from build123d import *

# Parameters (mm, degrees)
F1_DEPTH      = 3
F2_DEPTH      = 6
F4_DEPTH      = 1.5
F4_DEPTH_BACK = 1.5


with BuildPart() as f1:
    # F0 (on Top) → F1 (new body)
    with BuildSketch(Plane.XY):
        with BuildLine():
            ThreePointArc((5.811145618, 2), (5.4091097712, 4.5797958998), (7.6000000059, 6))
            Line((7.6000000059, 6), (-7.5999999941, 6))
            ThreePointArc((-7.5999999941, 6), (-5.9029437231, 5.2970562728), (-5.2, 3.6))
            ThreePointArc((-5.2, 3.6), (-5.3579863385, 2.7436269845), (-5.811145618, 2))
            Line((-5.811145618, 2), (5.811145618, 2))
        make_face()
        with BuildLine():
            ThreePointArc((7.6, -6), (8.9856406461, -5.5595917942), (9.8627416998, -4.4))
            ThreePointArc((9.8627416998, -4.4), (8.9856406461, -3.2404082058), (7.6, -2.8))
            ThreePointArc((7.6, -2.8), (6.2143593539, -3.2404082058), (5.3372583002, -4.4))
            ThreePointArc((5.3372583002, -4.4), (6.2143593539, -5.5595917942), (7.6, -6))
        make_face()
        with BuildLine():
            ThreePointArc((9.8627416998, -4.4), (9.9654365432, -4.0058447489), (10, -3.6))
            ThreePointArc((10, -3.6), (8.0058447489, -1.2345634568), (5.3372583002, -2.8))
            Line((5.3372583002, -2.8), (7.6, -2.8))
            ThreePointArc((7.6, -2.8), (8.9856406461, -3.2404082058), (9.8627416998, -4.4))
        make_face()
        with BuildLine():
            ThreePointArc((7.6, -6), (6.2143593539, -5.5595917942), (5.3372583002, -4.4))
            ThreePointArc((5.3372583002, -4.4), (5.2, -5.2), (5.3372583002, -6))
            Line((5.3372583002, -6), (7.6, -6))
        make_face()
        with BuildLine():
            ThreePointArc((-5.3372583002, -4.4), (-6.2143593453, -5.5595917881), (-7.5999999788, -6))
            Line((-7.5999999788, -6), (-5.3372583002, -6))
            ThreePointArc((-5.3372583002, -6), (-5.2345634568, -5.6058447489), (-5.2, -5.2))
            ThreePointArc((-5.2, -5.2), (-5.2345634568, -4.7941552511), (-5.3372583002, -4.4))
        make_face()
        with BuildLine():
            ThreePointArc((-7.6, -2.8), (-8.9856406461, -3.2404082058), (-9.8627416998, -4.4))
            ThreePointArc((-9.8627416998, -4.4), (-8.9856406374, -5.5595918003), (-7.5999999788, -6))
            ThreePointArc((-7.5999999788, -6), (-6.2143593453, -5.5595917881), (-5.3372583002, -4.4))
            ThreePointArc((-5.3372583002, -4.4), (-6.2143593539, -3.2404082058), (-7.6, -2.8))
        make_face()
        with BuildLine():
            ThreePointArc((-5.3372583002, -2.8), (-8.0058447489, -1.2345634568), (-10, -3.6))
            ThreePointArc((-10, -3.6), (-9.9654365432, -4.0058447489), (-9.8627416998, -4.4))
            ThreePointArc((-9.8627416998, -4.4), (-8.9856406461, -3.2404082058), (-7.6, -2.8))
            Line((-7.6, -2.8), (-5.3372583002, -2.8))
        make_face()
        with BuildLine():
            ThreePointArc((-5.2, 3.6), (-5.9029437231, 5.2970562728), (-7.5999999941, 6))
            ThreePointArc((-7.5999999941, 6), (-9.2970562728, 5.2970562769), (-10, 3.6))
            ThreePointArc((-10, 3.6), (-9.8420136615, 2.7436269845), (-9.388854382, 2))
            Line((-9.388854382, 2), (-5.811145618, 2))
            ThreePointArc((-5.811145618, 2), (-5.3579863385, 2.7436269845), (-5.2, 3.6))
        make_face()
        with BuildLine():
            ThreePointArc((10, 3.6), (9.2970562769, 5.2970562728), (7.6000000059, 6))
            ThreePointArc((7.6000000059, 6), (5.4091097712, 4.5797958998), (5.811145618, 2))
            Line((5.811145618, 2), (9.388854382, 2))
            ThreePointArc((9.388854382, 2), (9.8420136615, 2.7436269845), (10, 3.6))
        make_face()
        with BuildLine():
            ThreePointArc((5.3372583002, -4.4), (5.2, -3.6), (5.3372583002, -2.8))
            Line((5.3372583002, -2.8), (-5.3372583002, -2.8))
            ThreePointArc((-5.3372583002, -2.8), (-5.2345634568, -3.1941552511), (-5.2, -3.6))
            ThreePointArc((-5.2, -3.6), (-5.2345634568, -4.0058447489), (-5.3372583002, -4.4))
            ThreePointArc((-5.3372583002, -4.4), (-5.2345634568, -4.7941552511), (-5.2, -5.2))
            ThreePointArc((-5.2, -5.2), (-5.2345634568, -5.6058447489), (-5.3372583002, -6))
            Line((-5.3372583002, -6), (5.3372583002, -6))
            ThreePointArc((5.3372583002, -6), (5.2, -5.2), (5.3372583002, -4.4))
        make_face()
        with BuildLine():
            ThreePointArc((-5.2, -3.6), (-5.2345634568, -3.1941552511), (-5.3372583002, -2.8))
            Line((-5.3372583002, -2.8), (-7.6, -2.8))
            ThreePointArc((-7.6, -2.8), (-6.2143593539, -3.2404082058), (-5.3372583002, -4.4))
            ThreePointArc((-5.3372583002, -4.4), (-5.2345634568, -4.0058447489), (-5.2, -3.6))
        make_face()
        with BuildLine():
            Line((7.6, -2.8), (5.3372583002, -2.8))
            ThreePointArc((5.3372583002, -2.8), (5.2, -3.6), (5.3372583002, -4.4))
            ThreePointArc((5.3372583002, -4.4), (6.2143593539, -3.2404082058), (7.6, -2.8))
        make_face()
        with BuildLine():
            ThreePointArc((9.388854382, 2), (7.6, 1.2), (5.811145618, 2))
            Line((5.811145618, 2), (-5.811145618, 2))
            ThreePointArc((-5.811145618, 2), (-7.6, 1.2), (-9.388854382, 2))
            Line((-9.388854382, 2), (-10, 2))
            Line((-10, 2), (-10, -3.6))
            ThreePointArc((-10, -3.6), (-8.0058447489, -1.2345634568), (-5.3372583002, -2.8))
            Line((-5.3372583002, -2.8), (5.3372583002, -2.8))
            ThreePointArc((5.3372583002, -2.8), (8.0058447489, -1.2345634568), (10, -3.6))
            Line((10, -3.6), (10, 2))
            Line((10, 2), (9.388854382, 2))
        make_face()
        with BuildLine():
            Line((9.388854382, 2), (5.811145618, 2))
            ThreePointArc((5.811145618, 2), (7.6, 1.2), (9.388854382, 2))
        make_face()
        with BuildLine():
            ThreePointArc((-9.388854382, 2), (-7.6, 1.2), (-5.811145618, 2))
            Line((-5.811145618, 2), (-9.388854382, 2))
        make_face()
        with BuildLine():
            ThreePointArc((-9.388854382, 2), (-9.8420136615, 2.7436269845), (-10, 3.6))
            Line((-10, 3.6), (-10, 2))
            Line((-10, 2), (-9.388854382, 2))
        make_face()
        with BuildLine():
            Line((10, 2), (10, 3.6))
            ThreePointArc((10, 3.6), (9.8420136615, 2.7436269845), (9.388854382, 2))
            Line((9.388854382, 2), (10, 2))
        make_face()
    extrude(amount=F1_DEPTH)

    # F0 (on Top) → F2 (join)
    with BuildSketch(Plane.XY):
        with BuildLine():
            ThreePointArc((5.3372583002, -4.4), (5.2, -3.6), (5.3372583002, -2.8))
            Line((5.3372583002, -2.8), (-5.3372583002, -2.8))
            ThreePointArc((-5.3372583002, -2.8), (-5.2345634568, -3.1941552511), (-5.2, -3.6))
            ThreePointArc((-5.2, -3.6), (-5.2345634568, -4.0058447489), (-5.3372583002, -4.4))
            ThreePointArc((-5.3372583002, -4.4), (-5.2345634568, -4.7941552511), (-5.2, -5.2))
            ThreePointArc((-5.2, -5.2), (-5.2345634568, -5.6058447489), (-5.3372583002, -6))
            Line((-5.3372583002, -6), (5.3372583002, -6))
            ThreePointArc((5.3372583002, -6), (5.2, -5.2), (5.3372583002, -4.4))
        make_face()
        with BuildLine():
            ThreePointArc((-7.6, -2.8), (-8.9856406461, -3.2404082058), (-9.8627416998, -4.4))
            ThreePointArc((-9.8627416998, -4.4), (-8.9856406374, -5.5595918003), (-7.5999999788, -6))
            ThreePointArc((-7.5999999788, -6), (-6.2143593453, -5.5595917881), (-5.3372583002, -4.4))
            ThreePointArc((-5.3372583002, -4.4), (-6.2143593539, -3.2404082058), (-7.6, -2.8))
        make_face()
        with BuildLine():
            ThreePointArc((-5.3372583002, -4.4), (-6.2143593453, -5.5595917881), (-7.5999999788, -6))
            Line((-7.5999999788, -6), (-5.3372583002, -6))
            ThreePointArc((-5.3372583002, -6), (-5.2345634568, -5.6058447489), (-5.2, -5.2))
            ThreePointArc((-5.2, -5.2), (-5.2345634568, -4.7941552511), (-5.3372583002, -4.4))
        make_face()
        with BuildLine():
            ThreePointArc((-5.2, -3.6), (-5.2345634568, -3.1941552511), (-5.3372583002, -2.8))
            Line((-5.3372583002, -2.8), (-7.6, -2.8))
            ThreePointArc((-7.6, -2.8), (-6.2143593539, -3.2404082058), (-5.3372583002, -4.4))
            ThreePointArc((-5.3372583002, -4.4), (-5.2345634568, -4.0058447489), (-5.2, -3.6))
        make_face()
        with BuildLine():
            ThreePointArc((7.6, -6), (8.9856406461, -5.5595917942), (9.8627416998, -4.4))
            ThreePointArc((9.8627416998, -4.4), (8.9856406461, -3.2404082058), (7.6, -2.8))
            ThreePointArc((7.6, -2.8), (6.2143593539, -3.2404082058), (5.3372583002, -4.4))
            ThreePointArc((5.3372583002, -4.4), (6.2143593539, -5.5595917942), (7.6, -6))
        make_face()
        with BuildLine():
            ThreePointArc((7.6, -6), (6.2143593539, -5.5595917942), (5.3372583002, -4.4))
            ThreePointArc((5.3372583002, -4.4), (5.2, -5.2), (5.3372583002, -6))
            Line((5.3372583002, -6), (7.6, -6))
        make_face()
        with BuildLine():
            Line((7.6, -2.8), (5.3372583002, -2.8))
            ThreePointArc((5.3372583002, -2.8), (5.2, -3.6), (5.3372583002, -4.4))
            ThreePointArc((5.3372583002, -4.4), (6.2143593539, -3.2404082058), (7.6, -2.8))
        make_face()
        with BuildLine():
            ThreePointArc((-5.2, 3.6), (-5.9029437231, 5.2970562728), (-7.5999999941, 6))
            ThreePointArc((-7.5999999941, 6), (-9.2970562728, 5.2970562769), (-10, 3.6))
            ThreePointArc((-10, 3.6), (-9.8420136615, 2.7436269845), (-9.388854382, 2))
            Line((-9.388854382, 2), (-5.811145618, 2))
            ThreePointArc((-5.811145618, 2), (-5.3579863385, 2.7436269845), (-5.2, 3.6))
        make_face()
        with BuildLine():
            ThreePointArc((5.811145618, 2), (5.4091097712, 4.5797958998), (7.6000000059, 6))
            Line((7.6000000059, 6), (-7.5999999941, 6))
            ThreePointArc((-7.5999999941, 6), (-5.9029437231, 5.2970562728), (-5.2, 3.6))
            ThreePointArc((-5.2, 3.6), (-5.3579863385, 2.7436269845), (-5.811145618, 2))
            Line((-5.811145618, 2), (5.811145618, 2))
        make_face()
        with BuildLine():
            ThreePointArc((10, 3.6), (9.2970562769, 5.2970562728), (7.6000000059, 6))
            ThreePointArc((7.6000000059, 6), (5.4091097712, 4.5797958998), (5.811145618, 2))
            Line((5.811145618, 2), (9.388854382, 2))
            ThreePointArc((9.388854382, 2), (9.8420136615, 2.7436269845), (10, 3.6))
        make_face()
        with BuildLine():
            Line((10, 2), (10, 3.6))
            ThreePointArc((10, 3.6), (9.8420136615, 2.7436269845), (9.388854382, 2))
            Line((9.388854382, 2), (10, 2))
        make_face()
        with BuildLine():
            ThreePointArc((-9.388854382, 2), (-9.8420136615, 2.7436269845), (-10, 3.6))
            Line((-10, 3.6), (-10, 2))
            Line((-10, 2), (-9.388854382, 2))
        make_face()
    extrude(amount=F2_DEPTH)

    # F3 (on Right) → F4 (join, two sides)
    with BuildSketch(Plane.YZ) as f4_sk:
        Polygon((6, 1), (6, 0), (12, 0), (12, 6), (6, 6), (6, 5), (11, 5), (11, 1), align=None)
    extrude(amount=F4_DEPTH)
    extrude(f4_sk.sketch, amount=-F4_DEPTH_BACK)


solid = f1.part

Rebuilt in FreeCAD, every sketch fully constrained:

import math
import FreeCAD as App
import Part
import Sketcher
Q = App.Units.Quantity

doc = App.newDocument("Part")
params = doc.addObject("Spreadsheet::Sheet", "Params")
for row, (alias, value) in enumerate([
    ("sketch1_radius", "2.4 mm"),
    ("sketch1_width", "15.2 mm"),
    ("sketch1_height", "7.2 mm"),
    ("pad1_length", "3 mm"),
    ("sketch2_radius", "2.4 mm"),
    ("sketch2_width", "20 mm"),
    ("sketch2_height", "1.6 mm"),
    ("pad2_length", "6 mm"),
    ("sketch3_width", "6 mm"),
    ("sketch3_width2", "5 mm"),
    ("sketch3_height", "1 mm"),
    ("pad3_length", "1.5 mm"),
    ("pad3_length2", "1.5 mm"),
], start=1):
    params.set(f"A{row}", alias)
    params.set(f"B{row}", "=" + value)
    params.setAlias(f"B{row}", alias)

body = doc.addObject("PartDesign::Body", "Body")

sketch1 = doc.addObject("Sketcher::SketchObject", "Sketch")
body.addObject(sketch1)
sketch1.AttachmentSupport = (doc.XY_Plane, [""])
sketch1.MapMode = "FlatFace"
sketch1.addGeometry(Part.ArcOfCircle(Part.Circle(App.Vector(-7.6, -3.6, 0), App.Vector(0, 0, 1), 2.4), math.radians(180), math.radians(199.47)), False)
sketch1.addGeometry(Part.ArcOfCircle(Part.Circle(App.Vector(-7.6, -3.6, 0), App.Vector(0, 0, 1), 2.4), math.radians(-161), math.radians(-90)), False)
sketch1.addGeometry(Part.LineSegment(App.Vector(-7.6, -6, 0), App.Vector(7.6, -6, 0)), False)
sketch1.addGeometry(Part.ArcOfCircle(Part.Circle(App.Vector(7.6, -3.6, 0), App.Vector(0, 0, 1), 2.4), math.radians(-90), math.radians(-19)), False)
sketch1.addGeometry(Part.ArcOfCircle(Part.Circle(App.Vector(7.6, -3.6, 0), App.Vector(0, 0, 1), 2.4), math.radians(-19.47), math.radians(0)), False)
sketch1.addGeometry(Part.LineSegment(App.Vector(10, -3.6, 0), App.Vector(10, 3.6, 0)), False)
sketch1.addGeometry(Part.ArcOfCircle(Part.Circle(App.Vector(7.6, 3.6, 0), App.Vector(0, 0, 1), 2.4), math.radians(0), math.radians(90)), False)
sketch1.addGeometry(Part.LineSegment(App.Vector(7.6, 6, 0), App.Vector(-7.6, 6, 0)), False)
sketch1.addGeometry(Part.ArcOfCircle(Part.Circle(App.Vector(-7.6, 3.6, 0), App.Vector(0, 0, 1), 2.4), math.radians(90), math.radians(180)), False)
sketch1.addGeometry(Part.LineSegment(App.Vector(-10, 3.6, 0), App.Vector(-10, -3.6, 0)), False)
sketch1.addConstraint(Sketcher.Constraint("Tangent", 0, 2, 1, 1))
sketch1.addConstraint(Sketcher.Constraint("Tangent", 1, 2, 2, 1))
sketch1.addConstraint(Sketcher.Constraint("Tangent", 2, 2, 3, 1))
sketch1.addConstraint(Sketcher.Constraint("Tangent", 3, 2, 4, 1))
sketch1.addConstraint(Sketcher.Constraint("Tangent", 4, 2, 5, 1))
sketch1.addConstraint(Sketcher.Constraint("Tangent", 5, 2, 6, 1))
sketch1.addConstraint(Sketcher.Constraint("Tangent", 6, 2, 7, 1))
sketch1.addConstraint(Sketcher.Constraint("Tangent", 7, 2, 8, 1))
sketch1.addConstraint(Sketcher.Constraint("Tangent", 8, 2, 9, 1))
sketch1.addConstraint(Sketcher.Constraint("Tangent", 9, 2, 0, 1))
sketch1.addConstraint(Sketcher.Constraint("Horizontal", 2))
sketch1.addConstraint(Sketcher.Constraint("Vertical", 5))
sketch1.addConstraint(Sketcher.Constraint("Horizontal", 7))
sketch1.addConstraint(Sketcher.Constraint("Vertical", 9))
sketch1.addConstraint(Sketcher.Constraint("Equal", 0, 1))
sketch1.addConstraint(Sketcher.Constraint("Equal", 1, 3))
sketch1.addConstraint(Sketcher.Constraint("Equal", 3, 4))
sketch1.addConstraint(Sketcher.Constraint("Equal", 4, 6))
sketch1.addConstraint(Sketcher.Constraint("Equal", 6, 8))
sketch1.addConstraint(Sketcher.Constraint("Symmetric", 0, 3, 6, 3, -1, 1))
sketch1.addConstraint(Sketcher.Constraint("Horizontal", 0, 2, 3, 2))
sketch1.addConstraint(Sketcher.Constraint("Radius", 0, Q("2.4 mm")))
sketch1.addConstraint(Sketcher.Constraint("DistanceX", 2, 1, 2, 2, Q("15.2 mm")))
sketch1.addConstraint(Sketcher.Constraint("DistanceY", 5, 1, 5, 2, Q("7.2 mm")))
sketch1.addConstraint(Sketcher.Constraint("DistanceY", 0, 2, 8, 3, Q("8 mm")))
sketch1.setExpression("Constraints[21]", "Params.sketch1_radius")
sketch1.setExpression("Constraints[22]", "Params.sketch1_width")
sketch1.setExpression("Constraints[23]", "Params.sketch1_height")
pad1 = doc.addObject("PartDesign::Pad", "Pad")
body.addObject(pad1)
pad1.Profile = sketch1
pad1.setExpression("Length", "Params.pad1_length")

sketch2 = doc.addObject("Sketcher::SketchObject", "Sketch001")
body.addObject(sketch2)
sketch2.AttachmentSupport = (doc.XY_Plane, [""])
sketch2.MapMode = "FlatFace"
sketch2.addGeometry(Part.ArcOfCircle(Part.Circle(App.Vector(-7.6, -5.2, 0), App.Vector(0, 0, 1), 2.4), math.radians(90), math.radians(161)), False)
sketch2.addGeometry(Part.ArcOfCircle(Part.Circle(App.Vector(-7.6, -3.6, 0), App.Vector(0, 0, 1), 2.4), math.radians(-161), math.radians(-90)), False)
sketch2.addGeometry(Part.LineSegment(App.Vector(-7.6, -6, 0), App.Vector(7.6, -6, 0)), False)
sketch2.addGeometry(Part.ArcOfCircle(Part.Circle(App.Vector(7.6, -3.6, 0), App.Vector(0, 0, 1), 2.4), math.radians(-90), math.radians(-19)), False)
sketch2.addGeometry(Part.ArcOfCircle(Part.Circle(App.Vector(7.6, -5.2, 0), App.Vector(0, 0, 1), 2.4), math.radians(19), math.radians(90)), False)
sketch2.addGeometry(Part.LineSegment(App.Vector(7.6, -2.8, 0), App.Vector(-7.6, -2.8, 0)), False)
sketch2.addGeometry(Part.ArcOfCircle(Part.Circle(App.Vector(-7.6, 3.6, 0), App.Vector(0, 0, 1), 2.4), math.radians(90), math.radians(180)), False)
sketch2.addGeometry(Part.LineSegment(App.Vector(-10, 3.6, 0), App.Vector(-10, 2, 0)), False)
sketch2.addGeometry(Part.LineSegment(App.Vector(-10, 2, 0), App.Vector(10, 2, 0)), False)
sketch2.addGeometry(Part.LineSegment(App.Vector(10, 2, 0), App.Vector(10, 3.6, 0)), False)
sketch2.addGeometry(Part.ArcOfCircle(Part.Circle(App.Vector(7.6, 3.6, 0), App.Vector(0, 0, 1), 2.4), math.radians(0), math.radians(90)), False)
sketch2.addGeometry(Part.LineSegment(App.Vector(7.6, 6, 0), App.Vector(-7.6, 6, 0)), False)
sketch2.addConstraint(Sketcher.Constraint("Coincident", 0, 2, 1, 1))
sketch2.addConstraint(Sketcher.Constraint("Tangent", 1, 2, 2, 1))
sketch2.addConstraint(Sketcher.Constraint("Tangent", 2, 2, 3, 1))
sketch2.addConstraint(Sketcher.Constraint("Coincident", 3, 2, 4, 1))
sketch2.addConstraint(Sketcher.Constraint("Tangent", 4, 2, 5, 1))
sketch2.addConstraint(Sketcher.Constraint("Tangent", 5, 2, 0, 1))
sketch2.addConstraint(Sketcher.Constraint("Tangent", 6, 2, 7, 1))
sketch2.addConstraint(Sketcher.Constraint("Coincident", 7, 2, 8, 1))
sketch2.addConstraint(Sketcher.Constraint("Coincident", 8, 2, 9, 1))
sketch2.addConstraint(Sketcher.Constraint("Tangent", 9, 2, 10, 1))
sketch2.addConstraint(Sketcher.Constraint("Tangent", 10, 2, 11, 1))
sketch2.addConstraint(Sketcher.Constraint("Tangent", 11, 2, 6, 1))
sketch2.addConstraint(Sketcher.Constraint("Horizontal", 2))
sketch2.addConstraint(Sketcher.Constraint("Horizontal", 5))
sketch2.addConstraint(Sketcher.Constraint("Vertical", 7))
sketch2.addConstraint(Sketcher.Constraint("Horizontal", 8))
sketch2.addConstraint(Sketcher.Constraint("Vertical", 9))
sketch2.addConstraint(Sketcher.Constraint("Horizontal", 11))
sketch2.addConstraint(Sketcher.Constraint("Equal", 0, 1))
sketch2.addConstraint(Sketcher.Constraint("Equal", 1, 3))
sketch2.addConstraint(Sketcher.Constraint("Equal", 3, 4))
sketch2.addConstraint(Sketcher.Constraint("Equal", 4, 6))
sketch2.addConstraint(Sketcher.Constraint("Equal", 6, 10))
sketch2.addConstraint(Sketcher.Constraint("Symmetric", 3, 3, 6, 3, -1, 1))
sketch2.addConstraint(Sketcher.Constraint("Symmetric", 0, 2, 3, 2, -2))
sketch2.addConstraint(Sketcher.Constraint("Vertical", 0, 3, 1, 3))
sketch2.addConstraint(Sketcher.Constraint("Vertical", 4, 3, 10, 3))
sketch2.addConstraint(Sketcher.Constraint("Radius", 0, Q("2.4 mm")))
sketch2.addConstraint(Sketcher.Constraint("DistanceX", 8, 1, 8, 2, Q("20 mm")))
sketch2.addConstraint(Sketcher.Constraint("DistanceY", 7, 2, 7, 1, Q("1.6 mm")))
sketch2.addConstraint(Sketcher.Constraint("DistanceY", 1, 2, -1, 1, Q("6 mm")))
sketch2.addConstraint(Sketcher.Constraint("DistanceY", 0, 2, 6, 3, Q("8 mm")))
sketch2.setExpression("Constraints[27]", "Params.sketch2_radius")
sketch2.setExpression("Constraints[28]", "Params.sketch2_width")
sketch2.setExpression("Constraints[29]", "Params.sketch2_height")
pad2 = doc.addObject("PartDesign::Pad", "Pad001")
body.addObject(pad2)
pad2.Profile = sketch2
pad2.setExpression("Length", "Params.pad2_length")

sketch3 = doc.addObject("Sketcher::SketchObject", "Sketch002")
body.addObject(sketch3)
sketch3.AttachmentSupport = (doc.YZ_Plane, [""])
sketch3.MapMode = "FlatFace"
sketch3.addGeometry(Part.LineSegment(App.Vector(6, 1, 0), App.Vector(6, 0, 0)), False)
sketch3.addGeometry(Part.LineSegment(App.Vector(6, 0, 0), App.Vector(12, 0, 0)), False)
sketch3.addGeometry(Part.LineSegment(App.Vector(12, 0, 0), App.Vector(12, 6, 0)), False)
sketch3.addGeometry(Part.LineSegment(App.Vector(12, 6, 0), App.Vector(6, 6, 0)), False)
sketch3.addGeometry(Part.LineSegment(App.Vector(6, 6, 0), App.Vector(6, 5, 0)), False)
sketch3.addGeometry(Part.LineSegment(App.Vector(6, 5, 0), App.Vector(11, 5, 0)), False)
sketch3.addGeometry(Part.LineSegment(App.Vector(11, 5, 0), App.Vector(11, 1, 0)), False)
sketch3.addGeometry(Part.LineSegment(App.Vector(11, 1, 0), App.Vector(6, 1, 0)), False)
sketch3.addConstraint(Sketcher.Constraint("Coincident", 0, 2, 1, 1))
sketch3.addConstraint(Sketcher.Constraint("Coincident", 1, 2, 2, 1))
sketch3.addConstraint(Sketcher.Constraint("Coincident", 2, 2, 3, 1))
sketch3.addConstraint(Sketcher.Constraint("Coincident", 3, 2, 4, 1))
sketch3.addConstraint(Sketcher.Constraint("Coincident", 4, 2, 5, 1))
sketch3.addConstraint(Sketcher.Constraint("Coincident", 5, 2, 6, 1))
sketch3.addConstraint(Sketcher.Constraint("Coincident", 6, 2, 7, 1))
sketch3.addConstraint(Sketcher.Constraint("Coincident", 7, 2, 0, 1))
sketch3.addConstraint(Sketcher.Constraint("Vertical", 0))
sketch3.addConstraint(Sketcher.Constraint("Horizontal", 1))
sketch3.addConstraint(Sketcher.Constraint("Vertical", 2))
sketch3.addConstraint(Sketcher.Constraint("Horizontal", 3))
sketch3.addConstraint(Sketcher.Constraint("Vertical", 4))
sketch3.addConstraint(Sketcher.Constraint("Horizontal", 5))
sketch3.addConstraint(Sketcher.Constraint("Vertical", 6))
sketch3.addConstraint(Sketcher.Constraint("Horizontal", 7))
sketch3.addConstraint(Sketcher.Constraint("PointOnObject", 0, 2, -1))
sketch3.addConstraint(Sketcher.Constraint("Vertical", 0, 2, 3, 2))
sketch3.addConstraint(Sketcher.Constraint("Equal", 3, 2))
sketch3.addConstraint(Sketcher.Constraint("Equal", 0, 4))
sketch3.addConstraint(Sketcher.Constraint("DistanceX", 1, 1, 1, 2, Q("6 mm")))
sketch3.addConstraint(Sketcher.Constraint("DistanceX", 5, 1, 5, 2, Q("5 mm")))
sketch3.addConstraint(Sketcher.Constraint("DistanceY", 0, 2, 0, 1, Q("1 mm")))
sketch3.addConstraint(Sketcher.Constraint("DistanceX", -1, 1, 0, 2, Q("6 mm")))
sketch3.setExpression("Constraints[20]", "Params.sketch3_width")
sketch3.setExpression("Constraints[21]", "Params.sketch3_width2")
sketch3.setExpression("Constraints[22]", "Params.sketch3_height")
pad3 = doc.addObject("PartDesign::Pad", "Pad002")
body.addObject(pad3)
pad3.Profile = sketch3
pad3.Type = "TwoLengths"
pad3.setExpression("Length", "Params.pad3_length")
pad3.setExpression("Length2", "Params.pad3_length2")

doc.recompute()
